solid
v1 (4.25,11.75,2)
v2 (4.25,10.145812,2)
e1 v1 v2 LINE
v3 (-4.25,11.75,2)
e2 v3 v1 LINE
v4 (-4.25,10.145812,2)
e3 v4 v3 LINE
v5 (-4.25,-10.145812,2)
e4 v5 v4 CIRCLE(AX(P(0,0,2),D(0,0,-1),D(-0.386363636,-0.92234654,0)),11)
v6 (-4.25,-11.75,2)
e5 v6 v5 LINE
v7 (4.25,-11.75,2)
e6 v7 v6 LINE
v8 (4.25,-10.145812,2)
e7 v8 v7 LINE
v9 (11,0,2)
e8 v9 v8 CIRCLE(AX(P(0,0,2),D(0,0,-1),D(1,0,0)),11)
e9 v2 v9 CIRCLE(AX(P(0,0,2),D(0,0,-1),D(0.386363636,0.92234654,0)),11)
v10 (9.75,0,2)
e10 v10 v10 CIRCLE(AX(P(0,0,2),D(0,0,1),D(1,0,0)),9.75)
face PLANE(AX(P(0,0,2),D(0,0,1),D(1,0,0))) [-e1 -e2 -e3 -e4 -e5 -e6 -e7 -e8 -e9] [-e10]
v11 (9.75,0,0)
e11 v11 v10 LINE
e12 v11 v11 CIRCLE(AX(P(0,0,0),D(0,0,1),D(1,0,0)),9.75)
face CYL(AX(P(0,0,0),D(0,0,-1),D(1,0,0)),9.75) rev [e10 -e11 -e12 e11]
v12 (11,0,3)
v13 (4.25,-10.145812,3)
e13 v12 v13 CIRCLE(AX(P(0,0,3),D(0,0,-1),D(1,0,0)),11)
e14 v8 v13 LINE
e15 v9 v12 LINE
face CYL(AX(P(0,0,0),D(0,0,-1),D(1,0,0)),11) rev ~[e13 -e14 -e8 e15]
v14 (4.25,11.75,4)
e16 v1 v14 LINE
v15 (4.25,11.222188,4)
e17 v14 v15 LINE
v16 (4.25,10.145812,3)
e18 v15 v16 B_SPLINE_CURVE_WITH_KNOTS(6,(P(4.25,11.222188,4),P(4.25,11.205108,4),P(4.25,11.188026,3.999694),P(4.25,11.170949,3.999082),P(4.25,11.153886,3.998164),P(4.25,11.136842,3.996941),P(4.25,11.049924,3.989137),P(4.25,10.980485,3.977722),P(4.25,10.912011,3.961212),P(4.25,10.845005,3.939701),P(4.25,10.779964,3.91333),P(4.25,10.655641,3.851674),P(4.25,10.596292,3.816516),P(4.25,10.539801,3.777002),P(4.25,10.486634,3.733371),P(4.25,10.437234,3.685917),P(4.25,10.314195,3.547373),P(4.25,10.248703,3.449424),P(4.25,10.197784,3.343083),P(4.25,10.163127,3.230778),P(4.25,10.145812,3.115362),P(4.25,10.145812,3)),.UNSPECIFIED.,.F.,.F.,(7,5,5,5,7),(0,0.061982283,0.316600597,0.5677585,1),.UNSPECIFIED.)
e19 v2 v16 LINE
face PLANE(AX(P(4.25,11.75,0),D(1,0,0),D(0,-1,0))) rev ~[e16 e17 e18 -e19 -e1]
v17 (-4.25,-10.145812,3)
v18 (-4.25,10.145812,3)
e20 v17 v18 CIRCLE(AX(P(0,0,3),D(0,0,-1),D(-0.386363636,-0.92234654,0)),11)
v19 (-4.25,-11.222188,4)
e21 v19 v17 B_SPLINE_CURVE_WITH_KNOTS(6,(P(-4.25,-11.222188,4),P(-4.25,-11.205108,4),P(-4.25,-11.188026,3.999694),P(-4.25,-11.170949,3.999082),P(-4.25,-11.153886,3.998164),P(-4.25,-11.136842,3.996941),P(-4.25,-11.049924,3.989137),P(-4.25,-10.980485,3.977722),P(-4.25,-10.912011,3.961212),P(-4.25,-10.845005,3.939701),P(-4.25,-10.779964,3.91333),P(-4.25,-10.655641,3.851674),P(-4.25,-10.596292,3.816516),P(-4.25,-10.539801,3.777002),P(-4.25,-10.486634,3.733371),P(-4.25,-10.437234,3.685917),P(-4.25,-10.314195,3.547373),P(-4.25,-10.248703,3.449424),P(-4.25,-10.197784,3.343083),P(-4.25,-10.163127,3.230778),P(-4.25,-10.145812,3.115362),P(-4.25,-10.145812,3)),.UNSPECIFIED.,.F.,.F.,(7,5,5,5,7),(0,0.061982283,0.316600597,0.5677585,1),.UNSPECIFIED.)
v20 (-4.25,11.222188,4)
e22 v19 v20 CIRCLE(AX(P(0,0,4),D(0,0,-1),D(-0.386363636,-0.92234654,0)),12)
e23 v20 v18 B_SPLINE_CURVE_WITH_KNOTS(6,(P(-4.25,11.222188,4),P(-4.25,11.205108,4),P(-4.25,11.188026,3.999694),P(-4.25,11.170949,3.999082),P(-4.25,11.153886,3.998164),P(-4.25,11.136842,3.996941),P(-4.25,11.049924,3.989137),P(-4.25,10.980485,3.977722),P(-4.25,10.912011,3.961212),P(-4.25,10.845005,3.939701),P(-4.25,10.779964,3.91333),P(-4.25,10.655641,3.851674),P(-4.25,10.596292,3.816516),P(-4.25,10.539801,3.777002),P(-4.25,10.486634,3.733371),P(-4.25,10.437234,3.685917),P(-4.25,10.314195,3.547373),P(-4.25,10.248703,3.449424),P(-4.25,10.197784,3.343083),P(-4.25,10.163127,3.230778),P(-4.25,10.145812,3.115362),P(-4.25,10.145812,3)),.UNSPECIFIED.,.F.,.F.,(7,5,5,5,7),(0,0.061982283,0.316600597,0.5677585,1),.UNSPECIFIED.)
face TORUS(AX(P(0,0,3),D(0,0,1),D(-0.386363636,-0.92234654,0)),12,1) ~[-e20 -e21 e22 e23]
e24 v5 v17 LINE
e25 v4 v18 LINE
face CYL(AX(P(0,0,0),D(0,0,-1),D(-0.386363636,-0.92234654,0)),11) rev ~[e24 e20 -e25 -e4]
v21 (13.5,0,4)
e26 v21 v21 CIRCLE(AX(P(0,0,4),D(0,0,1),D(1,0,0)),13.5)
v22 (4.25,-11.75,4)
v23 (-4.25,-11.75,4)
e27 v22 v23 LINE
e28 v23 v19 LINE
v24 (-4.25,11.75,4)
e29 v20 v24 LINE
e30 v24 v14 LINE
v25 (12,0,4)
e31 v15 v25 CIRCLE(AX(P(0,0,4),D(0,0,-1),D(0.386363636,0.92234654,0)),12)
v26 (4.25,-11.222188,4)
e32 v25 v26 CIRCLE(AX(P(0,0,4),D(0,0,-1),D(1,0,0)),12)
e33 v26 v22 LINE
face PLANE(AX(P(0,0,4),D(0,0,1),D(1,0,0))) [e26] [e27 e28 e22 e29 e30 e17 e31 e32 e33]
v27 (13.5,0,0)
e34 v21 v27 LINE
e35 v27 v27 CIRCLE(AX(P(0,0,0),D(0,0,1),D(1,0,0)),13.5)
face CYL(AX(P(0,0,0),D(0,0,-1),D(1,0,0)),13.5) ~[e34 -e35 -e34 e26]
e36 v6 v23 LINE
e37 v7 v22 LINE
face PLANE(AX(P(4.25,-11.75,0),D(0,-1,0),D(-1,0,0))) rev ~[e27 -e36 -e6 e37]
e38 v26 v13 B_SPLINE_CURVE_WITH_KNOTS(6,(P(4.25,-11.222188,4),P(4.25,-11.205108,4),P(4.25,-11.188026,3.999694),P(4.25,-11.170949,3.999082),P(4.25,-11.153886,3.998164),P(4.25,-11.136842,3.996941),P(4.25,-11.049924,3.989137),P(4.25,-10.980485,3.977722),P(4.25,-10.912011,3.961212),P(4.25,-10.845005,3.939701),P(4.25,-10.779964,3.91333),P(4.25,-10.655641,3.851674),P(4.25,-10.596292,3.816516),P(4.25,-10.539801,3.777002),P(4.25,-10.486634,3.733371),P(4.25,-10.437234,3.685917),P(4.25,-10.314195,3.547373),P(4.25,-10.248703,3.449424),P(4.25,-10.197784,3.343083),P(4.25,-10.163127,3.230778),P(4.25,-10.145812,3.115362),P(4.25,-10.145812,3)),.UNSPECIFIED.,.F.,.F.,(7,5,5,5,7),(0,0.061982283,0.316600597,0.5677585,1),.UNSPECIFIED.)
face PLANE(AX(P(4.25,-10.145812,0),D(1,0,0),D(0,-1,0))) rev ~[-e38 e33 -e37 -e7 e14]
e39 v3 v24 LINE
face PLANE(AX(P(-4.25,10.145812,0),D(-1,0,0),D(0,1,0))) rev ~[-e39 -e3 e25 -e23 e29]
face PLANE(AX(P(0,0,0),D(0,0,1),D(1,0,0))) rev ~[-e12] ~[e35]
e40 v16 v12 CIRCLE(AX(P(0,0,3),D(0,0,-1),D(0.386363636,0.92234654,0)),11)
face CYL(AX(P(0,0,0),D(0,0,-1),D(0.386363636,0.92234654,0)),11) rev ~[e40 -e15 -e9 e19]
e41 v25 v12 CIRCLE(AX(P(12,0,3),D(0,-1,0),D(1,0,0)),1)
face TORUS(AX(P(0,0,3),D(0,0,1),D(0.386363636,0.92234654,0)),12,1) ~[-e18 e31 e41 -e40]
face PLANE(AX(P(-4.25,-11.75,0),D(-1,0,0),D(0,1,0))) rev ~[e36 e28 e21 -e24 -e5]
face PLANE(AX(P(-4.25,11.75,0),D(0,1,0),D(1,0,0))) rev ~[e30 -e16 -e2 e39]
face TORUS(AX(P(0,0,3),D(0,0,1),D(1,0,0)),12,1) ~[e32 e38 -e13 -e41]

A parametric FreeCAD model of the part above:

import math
import FreeCAD as App
import Part
import Sketcher

V = App.Vector
Q = App.Units.Quantity


def edges_at(feature, points):
    """Names of the edges that pass closest to the given points."""
    edges = feature.Shape.Edges
    near = lambda p: min(range(len(edges)), key=lambda i: edges[i].distToShape(Part.Vertex(*p))[0])
    return sorted({f"Edge{near(p) + 1}" for p in points})

doc = App.newDocument("Part")
body = doc.addObject("PartDesign::Body", "Body")

sketch1 = body.newObject("Sketcher::SketchObject", "Sketch")
sketch1.AttachmentSupport = (doc.getObject("XY_Plane"), [""])
sketch1.MapMode = "FlatFace"
sketch1.addGeometry(Part.Circle(V(0, 0, 0), V(0, 0, 1), 13.5), False)
sketch1.addGeometry(Part.LineSegment(V(4.25, 11.75, 0), V(4.25, 10.145812, 0)), False)
sketch1.addGeometry(Part.ArcOfCircle(Part.Circle(V(0, 0, 0), V(0, 0, 1), 11), math.radians(0), math.radians(67.271577)), False)
sketch1.addGeometry(Part.ArcOfCircle(Part.Circle(V(0, 0, 0), V(0, 0, 1), 11), math.radians(-67.271577), math.radians(0)), False)
sketch1.addGeometry(Part.LineSegment(V(4.25, -10.145812, 0), V(4.25, -11.75, 0)), False)
sketch1.addGeometry(Part.LineSegment(V(4.25, -11.75, 0), V(-4.25, -11.75, 0)), False)
sketch1.addGeometry(Part.LineSegment(V(-4.25, -11.75, 0), V(-4.25, -10.145812, 0)), False)
sketch1.addGeometry(Part.ArcOfCircle(Part.Circle(V(0, 0, 0), V(0, 0, 1), 11), math.radians(112.728423), math.radians(247.271577)), False)
sketch1.addGeometry(Part.LineSegment(V(-4.25, 10.145812, 0), V(-4.25, 11.75, 0)), False)
sketch1.addGeometry(Part.LineSegment(V(-4.25, 11.75, 0), V(4.25, 11.75, 0)), False)
sketch1.addConstraint(Sketcher.Constraint("Coincident", 1, 2, 2, 2))
sketch1.addConstraint(Sketcher.Constraint("Tangent", 2, 1, 3, 2))
sketch1.addConstraint(Sketcher.Constraint("Coincident", 3, 1, 4, 1))
sketch1.addConstraint(Sketcher.Constraint("Coincident", 4, 2, 5, 1))
sketch1.addConstraint(Sketcher.Constraint("Coincident", 5, 2, 6, 1))
sketch1.addConstraint(Sketcher.Constraint("Coincident", 6, 2, 7, 2))
sketch1.addConstraint(Sketcher.Constraint("Coincident", 7, 1, 8, 1))
sketch1.addConstraint(Sketcher.Constraint("Coincident", 8, 2, 9, 1))
sketch1.addConstraint(Sketcher.Constraint("Coincident", 9, 2, 1, 1))
sketch1.addConstraint(Sketcher.Constraint("Vertical", 1))
sketch1.addConstraint(Sketcher.Constraint("Vertical", 4))
sketch1.addConstraint(Sketcher.Constraint("Horizontal", 5))
sketch1.addConstraint(Sketcher.Constraint("Vertical", 6))
sketch1.addConstraint(Sketcher.Constraint("Vertical", 8))
sketch1.addConstraint(Sketcher.Constraint("Horizontal", 9))
sketch1.addConstraint(Sketcher.Constraint("Coincident", 0, 3, -1, 1))
sketch1.addConstraint(Sketcher.Constraint("Coincident", 2, 3, -1, 1))
sketch1.addConstraint(Sketcher.Constraint("Coincident", 7, 3, -1, 1))
sketch1.addConstraint(Sketcher.Constraint("Equal", 2, 3))
sketch1.addConstraint(Sketcher.Constraint("Equal", 3, 7))
sketch1.addConstraint(Sketcher.Constraint("Symmetric", 4, 2, 8, 2, -1, 1))
sketch1.addConstraint(Sketcher.Constraint("PointOnObject", 2, 1, -1))
sketch1.addConstraint(Sketcher.Constraint("Horizontal", 3, 1, 6, 2))
sketch1.addConstraint(Sketcher.Constraint("Horizontal", 1, 2, 7, 1))
sketch1.addConstraint(Sketcher.Constraint("Diameter", 0, Q("27 mm")))
sketch1.addConstraint(Sketcher.Constraint("Radius", 2, Q("11 mm")))
sketch1.addConstraint(Sketcher.Constraint("DistanceX", 5, 2, 5, 1, Q("8.5 mm")))
sketch1.addConstraint(Sketcher.Constraint("DistanceY", 4, 2, -1, 1, Q("11.75 mm")))
pad1 = body.newObject("PartDesign::Pad", "Pad")
pad1.Profile = sketch1
pad1.Length = 4

sketch2 = body.newObject("Sketcher::SketchObject", "Sketch001")
sketch2.AttachmentSupport = (doc.getObject("XY_Plane"), [""])
sketch2.MapMode = "FlatFace"
sketch2.addGeometry(Part.Circle(V(0, 0, 0), V(0, 0, 1), 13.5), False)
sketch2.addGeometry(Part.Circle(V(0, 0, 0), V(0, 0, 1), 9.75), False)
sketch2.addConstraint(Sketcher.Constraint("Coincident", 0, 3, -1, 1))
sketch2.addConstraint(Sketcher.Constraint("Coincident", 1, 3, -1, 1))
sketch2.addConstraint(Sketcher.Constraint("Diameter", 0, Q("27 mm")))
sketch2.addConstraint(Sketcher.Constraint("Diameter", 1, Q("19.5 mm")))
pad2 = body.newObject("PartDesign::Pad", "Pad001")
pad2.Profile = sketch2
pad2.Length = 2
doc.recompute()

fillet = body.newObject("PartDesign::Fillet", "Fillet")
fillet.Base = (pad2, edges_at(pad2, [(9.158, -6.093, 4), (-11, 0, 4)]))
fillet.Radius = 1

doc.recompute()
